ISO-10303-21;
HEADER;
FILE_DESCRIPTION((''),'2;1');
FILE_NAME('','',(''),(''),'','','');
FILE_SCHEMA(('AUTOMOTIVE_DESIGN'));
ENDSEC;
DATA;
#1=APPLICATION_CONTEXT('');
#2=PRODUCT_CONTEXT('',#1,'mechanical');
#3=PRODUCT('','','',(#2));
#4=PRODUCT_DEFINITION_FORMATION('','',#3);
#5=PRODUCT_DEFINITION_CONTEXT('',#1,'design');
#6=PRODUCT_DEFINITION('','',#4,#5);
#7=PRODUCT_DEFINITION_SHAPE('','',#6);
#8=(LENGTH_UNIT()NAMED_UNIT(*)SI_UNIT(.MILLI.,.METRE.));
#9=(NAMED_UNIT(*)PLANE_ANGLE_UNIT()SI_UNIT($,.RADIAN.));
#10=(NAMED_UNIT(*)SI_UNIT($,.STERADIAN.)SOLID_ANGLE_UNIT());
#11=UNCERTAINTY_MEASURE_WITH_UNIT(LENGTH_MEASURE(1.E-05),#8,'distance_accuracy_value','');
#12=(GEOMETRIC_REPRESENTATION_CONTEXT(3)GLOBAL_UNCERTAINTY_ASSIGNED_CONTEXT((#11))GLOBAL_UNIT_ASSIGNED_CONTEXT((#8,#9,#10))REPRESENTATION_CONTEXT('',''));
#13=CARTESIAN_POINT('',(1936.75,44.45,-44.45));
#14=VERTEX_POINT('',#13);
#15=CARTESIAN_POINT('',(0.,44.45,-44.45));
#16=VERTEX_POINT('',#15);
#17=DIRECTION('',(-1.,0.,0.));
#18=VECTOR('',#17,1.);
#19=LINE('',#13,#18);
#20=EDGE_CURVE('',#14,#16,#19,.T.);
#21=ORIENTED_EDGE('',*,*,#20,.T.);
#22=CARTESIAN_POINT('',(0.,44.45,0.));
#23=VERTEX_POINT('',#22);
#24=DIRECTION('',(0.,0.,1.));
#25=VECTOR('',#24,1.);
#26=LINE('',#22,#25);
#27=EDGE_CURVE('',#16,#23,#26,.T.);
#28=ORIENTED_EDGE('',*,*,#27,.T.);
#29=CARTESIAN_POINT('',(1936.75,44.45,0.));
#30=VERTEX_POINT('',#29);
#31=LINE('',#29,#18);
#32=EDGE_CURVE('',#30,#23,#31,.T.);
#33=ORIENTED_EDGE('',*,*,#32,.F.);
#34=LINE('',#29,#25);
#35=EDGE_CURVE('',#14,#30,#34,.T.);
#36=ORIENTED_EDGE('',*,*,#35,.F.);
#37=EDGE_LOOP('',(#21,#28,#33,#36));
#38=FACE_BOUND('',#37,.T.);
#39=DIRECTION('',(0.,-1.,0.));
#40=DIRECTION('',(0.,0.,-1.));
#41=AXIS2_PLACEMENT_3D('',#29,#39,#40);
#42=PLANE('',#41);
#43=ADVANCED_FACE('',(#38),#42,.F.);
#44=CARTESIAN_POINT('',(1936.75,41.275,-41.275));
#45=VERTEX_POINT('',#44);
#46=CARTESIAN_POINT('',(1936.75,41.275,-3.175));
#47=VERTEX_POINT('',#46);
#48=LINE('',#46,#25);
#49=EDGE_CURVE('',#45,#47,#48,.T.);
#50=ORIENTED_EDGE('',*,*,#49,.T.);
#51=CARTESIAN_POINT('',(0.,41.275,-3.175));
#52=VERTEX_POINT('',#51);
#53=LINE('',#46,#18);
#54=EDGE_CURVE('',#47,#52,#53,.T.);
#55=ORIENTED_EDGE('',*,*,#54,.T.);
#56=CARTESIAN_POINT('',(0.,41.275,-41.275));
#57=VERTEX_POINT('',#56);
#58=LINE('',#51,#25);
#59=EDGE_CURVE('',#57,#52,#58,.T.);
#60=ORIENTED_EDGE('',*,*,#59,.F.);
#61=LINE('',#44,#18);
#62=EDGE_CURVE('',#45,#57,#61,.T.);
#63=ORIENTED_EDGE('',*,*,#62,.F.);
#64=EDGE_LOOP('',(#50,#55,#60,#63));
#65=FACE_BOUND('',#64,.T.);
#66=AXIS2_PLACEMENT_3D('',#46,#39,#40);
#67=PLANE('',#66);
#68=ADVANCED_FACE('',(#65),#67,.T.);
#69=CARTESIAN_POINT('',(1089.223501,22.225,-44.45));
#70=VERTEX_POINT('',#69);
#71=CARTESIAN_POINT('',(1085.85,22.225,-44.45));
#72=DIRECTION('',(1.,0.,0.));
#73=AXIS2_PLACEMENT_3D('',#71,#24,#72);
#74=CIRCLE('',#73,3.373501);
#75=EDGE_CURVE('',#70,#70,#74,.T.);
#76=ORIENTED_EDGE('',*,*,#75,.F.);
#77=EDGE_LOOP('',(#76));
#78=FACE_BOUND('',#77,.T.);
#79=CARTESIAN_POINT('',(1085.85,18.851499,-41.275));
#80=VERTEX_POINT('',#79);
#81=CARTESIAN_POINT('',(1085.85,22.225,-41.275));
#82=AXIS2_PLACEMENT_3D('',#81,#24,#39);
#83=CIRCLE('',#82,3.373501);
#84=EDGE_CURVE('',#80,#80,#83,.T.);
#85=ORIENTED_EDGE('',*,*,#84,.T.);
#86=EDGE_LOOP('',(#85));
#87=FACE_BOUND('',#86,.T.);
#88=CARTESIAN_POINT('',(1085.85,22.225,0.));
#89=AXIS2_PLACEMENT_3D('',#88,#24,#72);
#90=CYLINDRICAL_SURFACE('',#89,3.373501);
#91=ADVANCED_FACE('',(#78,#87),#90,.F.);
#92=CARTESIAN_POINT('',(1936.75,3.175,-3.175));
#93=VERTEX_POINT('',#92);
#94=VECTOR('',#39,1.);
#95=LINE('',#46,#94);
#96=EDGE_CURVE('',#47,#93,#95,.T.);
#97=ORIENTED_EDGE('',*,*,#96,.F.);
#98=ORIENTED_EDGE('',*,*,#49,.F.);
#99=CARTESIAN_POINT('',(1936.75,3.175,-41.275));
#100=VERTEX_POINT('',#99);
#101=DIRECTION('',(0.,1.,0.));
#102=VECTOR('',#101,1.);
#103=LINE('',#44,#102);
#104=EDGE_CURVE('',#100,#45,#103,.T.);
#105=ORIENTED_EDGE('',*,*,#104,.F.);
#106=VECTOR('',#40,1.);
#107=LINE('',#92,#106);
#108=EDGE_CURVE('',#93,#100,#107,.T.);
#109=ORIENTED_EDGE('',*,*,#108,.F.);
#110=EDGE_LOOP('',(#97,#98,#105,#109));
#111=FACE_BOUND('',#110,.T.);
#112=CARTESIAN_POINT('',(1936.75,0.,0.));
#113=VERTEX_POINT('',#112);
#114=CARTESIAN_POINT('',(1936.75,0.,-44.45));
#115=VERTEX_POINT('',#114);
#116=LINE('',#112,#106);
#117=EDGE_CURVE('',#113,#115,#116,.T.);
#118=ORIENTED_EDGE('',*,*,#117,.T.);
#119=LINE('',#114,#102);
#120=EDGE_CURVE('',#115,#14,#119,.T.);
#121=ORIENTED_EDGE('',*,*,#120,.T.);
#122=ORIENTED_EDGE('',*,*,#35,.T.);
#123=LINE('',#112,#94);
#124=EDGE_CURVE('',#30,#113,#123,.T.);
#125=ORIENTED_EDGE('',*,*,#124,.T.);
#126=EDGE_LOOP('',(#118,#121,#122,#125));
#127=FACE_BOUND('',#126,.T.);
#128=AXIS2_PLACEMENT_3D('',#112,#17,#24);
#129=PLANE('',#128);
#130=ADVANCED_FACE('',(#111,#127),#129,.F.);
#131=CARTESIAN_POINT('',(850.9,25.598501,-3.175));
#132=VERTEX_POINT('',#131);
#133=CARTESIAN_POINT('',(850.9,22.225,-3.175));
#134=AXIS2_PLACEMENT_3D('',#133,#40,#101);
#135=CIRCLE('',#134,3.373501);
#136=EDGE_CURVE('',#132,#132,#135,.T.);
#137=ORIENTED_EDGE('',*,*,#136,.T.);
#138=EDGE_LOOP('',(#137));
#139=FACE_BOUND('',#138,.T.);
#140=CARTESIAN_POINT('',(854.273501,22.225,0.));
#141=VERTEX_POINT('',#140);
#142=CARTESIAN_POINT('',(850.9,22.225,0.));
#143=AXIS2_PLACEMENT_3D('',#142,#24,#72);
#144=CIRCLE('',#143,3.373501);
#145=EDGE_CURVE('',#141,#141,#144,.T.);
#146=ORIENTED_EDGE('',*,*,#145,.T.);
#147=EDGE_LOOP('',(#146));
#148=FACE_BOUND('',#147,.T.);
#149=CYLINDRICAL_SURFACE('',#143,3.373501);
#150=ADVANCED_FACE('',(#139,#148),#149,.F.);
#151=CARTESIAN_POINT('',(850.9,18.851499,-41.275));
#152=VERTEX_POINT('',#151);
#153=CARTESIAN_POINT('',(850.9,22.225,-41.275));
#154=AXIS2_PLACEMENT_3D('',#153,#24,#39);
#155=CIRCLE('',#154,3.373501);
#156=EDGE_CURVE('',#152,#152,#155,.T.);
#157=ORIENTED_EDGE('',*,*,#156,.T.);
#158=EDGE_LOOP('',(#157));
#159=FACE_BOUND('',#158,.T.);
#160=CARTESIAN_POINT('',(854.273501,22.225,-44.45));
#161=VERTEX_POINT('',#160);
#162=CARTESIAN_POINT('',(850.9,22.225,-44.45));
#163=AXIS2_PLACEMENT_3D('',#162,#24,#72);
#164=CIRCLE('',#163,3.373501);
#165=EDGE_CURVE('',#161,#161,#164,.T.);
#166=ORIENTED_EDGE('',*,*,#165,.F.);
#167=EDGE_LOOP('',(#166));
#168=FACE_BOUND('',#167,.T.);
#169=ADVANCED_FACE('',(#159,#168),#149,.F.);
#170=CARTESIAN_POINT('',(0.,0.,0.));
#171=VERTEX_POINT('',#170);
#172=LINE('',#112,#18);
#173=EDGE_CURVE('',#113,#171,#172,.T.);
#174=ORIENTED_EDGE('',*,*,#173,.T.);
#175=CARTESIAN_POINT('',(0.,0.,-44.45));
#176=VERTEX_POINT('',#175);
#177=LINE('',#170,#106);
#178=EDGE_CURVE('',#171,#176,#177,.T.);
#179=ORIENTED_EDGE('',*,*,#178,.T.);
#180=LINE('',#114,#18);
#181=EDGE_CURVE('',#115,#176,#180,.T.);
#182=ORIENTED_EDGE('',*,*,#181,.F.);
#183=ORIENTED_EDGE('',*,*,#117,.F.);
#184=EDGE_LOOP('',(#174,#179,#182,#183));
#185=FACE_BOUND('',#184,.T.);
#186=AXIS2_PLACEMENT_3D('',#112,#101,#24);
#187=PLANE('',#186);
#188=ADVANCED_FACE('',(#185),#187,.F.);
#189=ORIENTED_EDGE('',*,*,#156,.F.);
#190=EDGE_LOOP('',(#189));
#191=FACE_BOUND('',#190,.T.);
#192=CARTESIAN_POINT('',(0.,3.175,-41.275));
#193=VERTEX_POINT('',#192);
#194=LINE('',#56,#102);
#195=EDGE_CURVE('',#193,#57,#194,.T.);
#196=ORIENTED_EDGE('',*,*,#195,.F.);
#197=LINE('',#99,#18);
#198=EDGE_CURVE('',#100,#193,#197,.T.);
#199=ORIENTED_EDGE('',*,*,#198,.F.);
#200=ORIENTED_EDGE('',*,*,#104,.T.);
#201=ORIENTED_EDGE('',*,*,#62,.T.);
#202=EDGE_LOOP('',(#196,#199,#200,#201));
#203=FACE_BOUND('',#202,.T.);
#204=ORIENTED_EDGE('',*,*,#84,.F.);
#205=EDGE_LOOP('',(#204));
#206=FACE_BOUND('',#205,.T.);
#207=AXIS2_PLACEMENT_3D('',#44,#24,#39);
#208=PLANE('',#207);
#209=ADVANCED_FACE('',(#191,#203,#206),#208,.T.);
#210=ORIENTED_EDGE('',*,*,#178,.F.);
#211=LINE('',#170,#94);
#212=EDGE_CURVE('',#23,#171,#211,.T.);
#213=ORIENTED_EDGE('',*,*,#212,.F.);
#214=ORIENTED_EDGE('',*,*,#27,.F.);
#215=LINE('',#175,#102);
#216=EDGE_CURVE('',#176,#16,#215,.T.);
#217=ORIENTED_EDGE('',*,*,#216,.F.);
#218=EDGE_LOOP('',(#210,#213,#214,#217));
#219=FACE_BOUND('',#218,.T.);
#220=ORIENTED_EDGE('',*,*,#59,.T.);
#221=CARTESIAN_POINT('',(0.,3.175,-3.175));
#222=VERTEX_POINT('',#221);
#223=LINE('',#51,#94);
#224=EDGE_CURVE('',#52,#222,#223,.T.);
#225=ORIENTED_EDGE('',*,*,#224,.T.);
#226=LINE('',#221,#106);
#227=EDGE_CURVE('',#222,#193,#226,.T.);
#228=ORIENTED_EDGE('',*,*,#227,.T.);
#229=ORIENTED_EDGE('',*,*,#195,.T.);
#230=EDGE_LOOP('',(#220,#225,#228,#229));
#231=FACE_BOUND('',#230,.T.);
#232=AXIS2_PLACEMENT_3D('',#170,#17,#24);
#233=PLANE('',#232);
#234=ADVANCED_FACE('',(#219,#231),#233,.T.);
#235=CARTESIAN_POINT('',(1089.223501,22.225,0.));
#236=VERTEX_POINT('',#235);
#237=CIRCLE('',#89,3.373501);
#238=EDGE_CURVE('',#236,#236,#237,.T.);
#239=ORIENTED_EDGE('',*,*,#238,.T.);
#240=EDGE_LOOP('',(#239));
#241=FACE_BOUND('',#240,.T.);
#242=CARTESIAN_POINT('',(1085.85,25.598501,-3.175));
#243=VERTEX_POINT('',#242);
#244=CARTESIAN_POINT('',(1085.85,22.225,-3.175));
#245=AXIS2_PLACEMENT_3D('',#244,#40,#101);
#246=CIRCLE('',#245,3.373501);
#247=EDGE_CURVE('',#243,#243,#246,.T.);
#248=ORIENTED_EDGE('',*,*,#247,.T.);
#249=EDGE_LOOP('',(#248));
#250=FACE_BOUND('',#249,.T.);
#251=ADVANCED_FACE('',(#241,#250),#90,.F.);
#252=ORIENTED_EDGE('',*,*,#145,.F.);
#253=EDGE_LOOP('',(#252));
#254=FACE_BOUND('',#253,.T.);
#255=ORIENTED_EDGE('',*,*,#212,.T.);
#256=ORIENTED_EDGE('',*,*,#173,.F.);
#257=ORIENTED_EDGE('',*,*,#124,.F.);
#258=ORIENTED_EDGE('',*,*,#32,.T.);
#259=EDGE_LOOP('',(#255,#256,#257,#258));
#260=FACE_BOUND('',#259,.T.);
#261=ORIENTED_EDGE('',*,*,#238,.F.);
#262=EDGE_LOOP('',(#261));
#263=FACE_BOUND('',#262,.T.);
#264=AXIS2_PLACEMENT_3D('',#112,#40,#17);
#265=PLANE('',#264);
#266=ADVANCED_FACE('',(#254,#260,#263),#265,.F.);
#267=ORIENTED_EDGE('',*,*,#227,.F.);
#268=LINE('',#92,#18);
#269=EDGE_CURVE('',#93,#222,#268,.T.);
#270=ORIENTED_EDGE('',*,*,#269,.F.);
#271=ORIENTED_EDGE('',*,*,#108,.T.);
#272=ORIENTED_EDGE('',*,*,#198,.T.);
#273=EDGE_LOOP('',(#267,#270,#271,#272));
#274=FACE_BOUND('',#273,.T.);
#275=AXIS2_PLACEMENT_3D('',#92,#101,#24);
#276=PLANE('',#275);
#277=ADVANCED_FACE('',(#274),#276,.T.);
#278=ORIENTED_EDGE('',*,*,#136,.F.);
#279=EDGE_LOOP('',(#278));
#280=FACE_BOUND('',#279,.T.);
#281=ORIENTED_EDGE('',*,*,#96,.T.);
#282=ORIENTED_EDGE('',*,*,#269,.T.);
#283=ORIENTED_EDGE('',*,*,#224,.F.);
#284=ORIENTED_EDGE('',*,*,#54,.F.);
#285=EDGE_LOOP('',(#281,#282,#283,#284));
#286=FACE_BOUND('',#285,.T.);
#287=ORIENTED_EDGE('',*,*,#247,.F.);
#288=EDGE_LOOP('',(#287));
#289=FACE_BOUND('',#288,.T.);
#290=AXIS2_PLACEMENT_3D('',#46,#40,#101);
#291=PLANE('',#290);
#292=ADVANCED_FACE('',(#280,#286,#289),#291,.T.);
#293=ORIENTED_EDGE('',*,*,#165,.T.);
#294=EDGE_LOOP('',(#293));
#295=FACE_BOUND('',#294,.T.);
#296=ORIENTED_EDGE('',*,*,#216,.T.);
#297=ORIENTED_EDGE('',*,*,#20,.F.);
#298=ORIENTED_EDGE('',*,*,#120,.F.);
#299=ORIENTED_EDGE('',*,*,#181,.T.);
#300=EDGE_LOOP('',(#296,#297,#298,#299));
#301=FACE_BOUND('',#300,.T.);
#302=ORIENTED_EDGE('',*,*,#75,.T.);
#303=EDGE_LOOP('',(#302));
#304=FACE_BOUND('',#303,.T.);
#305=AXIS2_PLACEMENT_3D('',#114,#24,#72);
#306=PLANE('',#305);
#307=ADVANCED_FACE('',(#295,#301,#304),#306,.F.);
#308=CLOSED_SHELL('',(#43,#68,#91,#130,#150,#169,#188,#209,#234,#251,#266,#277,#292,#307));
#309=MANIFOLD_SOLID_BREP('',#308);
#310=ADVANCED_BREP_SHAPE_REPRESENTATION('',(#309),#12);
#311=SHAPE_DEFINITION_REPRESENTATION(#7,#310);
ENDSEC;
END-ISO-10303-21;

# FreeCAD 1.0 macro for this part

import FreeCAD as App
import Part
import Sketcher
from FreeCAD import Vector
Q = App.Units.Quantity

doc = App.newDocument("Part")
params = doc.addObject("Spreadsheet::Sheet", "Params")
for row, (alias, value) in enumerate([
    ("sketch1_width", "1.5 in"),
    ("sketch1_width2", "1.75 in"),
    ("pad1_length", "76.25 in"),
    ("hole_diameter", "6.747002 mm"),
], start=1):
    params.set(f"A{row}", alias)
    params.set(f"B{row}", "=" + value)
    params.setAlias(f"B{row}", alias)

body = doc.addObject("PartDesign::Body", "Body")

# Sketch on YZ plane
sketch1 = body.newObject("Sketcher::SketchObject", "Sketch")
sketch1.AttachmentSupport = (doc.getObject("YZ_Plane"), [""])
sketch1.MapMode = "FlatFace"
sketch1.addGeometry([
    Part.LineSegment(Vector(44, 0, 0), Vector(0, 0, 0)),  # 0
    Part.LineSegment(Vector(0, 0, 0), Vector(0, -44, 0)),  # 1
    Part.LineSegment(Vector(0, -44, 0), Vector(44, -44, 0)),  # 2
    Part.LineSegment(Vector(44, -44, 0), Vector(44, 0, 0)),  # 3
    Part.LineSegment(Vector(3, -41, 0), Vector(3, -3, 0)),  # 4
    Part.LineSegment(Vector(3, -3, 0), Vector(41, -3, 0)),  # 5
    Part.LineSegment(Vector(41, -3, 0), Vector(41, -41, 0)),  # 6
    Part.LineSegment(Vector(41, -41, 0), Vector(3, -41, 0)),  # 7
], False)
sketch1.addConstraint([
    Sketcher.Constraint("Coincident", 0, 2, 1, 1),
    Sketcher.Constraint("Coincident", 1, 2, 2, 1),
    Sketcher.Constraint("Coincident", 2, 2, 3, 1),
    Sketcher.Constraint("Coincident", 3, 2, 0, 1),
    Sketcher.Constraint("Coincident", 4, 2, 5, 1),
    Sketcher.Constraint("Coincident", 5, 2, 6, 1),
    Sketcher.Constraint("Coincident", 6, 2, 7, 1),
    Sketcher.Constraint("Coincident", 7, 2, 4, 1),
    Sketcher.Constraint("Horizontal", 0),
    Sketcher.Constraint("Vertical", 1),
    Sketcher.Constraint("Horizontal", 2),
    Sketcher.Constraint("Vertical", 3),
    Sketcher.Constraint("Vertical", 4),
    Sketcher.Constraint("Horizontal", 5),
    Sketcher.Constraint("Vertical", 6),
    Sketcher.Constraint("Horizontal", 7),
    Sketcher.Constraint("Coincident", 0, 2, -1, 1),
    Sketcher.Constraint("Equal", 2, 1),
    Sketcher.Constraint("Equal", 7, 4),
    Sketcher.Constraint("DistanceX", 5, 1, 5, 2, Q("1.5 in")),
    Sketcher.Constraint("DistanceX", 0, 2, 0, 1, Q("1.75 in")),
    Sketcher.Constraint("DistanceX", -1, 1, 4, 2, Q("0.125 in")),
    Sketcher.Constraint("DistanceY", 4, 2, -1, 1, Q("0.125 in")),
])
sketch1.setExpression("Constraints[19]", "Params.sketch1_width")
sketch1.setExpression("Constraints[20]", "Params.sketch1_width2")
pad1 = body.newObject("PartDesign::Pad", "Pad")
pad1.Profile = sketch1
pad1.setExpression("Length", "Params.pad1_length")

# Sketch on XY plane
sketch2 = body.newObject("Sketcher::SketchObject", "Sketch001")
sketch2.AttachmentSupport = (doc.getObject("XY_Plane"), [""])
sketch2.MapMode = "FlatFace"
sketch2.addGeometry([
    Part.Circle(Vector(850.9, 22.2, 0), Vector(0, 0, 1), 3.4),
    Part.Circle(Vector(1085.8, 22.2, 0), Vector(0, 0, 1), 3.4),
], False)
sketch2.addConstraint([
    Sketcher.Constraint("Equal", 0, 1),
    Sketcher.Constraint("Horizontal", 0, 3, 1, 3),
    Sketcher.Constraint("DistanceX", -1, 1, 0, 3, Q("33.5 in")),
    Sketcher.Constraint("DistanceX", -1, 1, 1, 3, Q("42.75 in")),
    Sketcher.Constraint("DistanceY", -1, 1, 0, 3, Q("0.875 in")),
    Sketcher.Constraint("Diameter", 0, Q("6.747002 mm")),
])
doc.recompute()
hole = body.newObject("PartDesign::Hole", "Hole")
hole.Profile = sketch2
hole.ThreadType = "None"
hole.setExpression("Diameter", "Params.hole_diameter")
hole.DepthType = "ThroughAll"

doc.recompute()
